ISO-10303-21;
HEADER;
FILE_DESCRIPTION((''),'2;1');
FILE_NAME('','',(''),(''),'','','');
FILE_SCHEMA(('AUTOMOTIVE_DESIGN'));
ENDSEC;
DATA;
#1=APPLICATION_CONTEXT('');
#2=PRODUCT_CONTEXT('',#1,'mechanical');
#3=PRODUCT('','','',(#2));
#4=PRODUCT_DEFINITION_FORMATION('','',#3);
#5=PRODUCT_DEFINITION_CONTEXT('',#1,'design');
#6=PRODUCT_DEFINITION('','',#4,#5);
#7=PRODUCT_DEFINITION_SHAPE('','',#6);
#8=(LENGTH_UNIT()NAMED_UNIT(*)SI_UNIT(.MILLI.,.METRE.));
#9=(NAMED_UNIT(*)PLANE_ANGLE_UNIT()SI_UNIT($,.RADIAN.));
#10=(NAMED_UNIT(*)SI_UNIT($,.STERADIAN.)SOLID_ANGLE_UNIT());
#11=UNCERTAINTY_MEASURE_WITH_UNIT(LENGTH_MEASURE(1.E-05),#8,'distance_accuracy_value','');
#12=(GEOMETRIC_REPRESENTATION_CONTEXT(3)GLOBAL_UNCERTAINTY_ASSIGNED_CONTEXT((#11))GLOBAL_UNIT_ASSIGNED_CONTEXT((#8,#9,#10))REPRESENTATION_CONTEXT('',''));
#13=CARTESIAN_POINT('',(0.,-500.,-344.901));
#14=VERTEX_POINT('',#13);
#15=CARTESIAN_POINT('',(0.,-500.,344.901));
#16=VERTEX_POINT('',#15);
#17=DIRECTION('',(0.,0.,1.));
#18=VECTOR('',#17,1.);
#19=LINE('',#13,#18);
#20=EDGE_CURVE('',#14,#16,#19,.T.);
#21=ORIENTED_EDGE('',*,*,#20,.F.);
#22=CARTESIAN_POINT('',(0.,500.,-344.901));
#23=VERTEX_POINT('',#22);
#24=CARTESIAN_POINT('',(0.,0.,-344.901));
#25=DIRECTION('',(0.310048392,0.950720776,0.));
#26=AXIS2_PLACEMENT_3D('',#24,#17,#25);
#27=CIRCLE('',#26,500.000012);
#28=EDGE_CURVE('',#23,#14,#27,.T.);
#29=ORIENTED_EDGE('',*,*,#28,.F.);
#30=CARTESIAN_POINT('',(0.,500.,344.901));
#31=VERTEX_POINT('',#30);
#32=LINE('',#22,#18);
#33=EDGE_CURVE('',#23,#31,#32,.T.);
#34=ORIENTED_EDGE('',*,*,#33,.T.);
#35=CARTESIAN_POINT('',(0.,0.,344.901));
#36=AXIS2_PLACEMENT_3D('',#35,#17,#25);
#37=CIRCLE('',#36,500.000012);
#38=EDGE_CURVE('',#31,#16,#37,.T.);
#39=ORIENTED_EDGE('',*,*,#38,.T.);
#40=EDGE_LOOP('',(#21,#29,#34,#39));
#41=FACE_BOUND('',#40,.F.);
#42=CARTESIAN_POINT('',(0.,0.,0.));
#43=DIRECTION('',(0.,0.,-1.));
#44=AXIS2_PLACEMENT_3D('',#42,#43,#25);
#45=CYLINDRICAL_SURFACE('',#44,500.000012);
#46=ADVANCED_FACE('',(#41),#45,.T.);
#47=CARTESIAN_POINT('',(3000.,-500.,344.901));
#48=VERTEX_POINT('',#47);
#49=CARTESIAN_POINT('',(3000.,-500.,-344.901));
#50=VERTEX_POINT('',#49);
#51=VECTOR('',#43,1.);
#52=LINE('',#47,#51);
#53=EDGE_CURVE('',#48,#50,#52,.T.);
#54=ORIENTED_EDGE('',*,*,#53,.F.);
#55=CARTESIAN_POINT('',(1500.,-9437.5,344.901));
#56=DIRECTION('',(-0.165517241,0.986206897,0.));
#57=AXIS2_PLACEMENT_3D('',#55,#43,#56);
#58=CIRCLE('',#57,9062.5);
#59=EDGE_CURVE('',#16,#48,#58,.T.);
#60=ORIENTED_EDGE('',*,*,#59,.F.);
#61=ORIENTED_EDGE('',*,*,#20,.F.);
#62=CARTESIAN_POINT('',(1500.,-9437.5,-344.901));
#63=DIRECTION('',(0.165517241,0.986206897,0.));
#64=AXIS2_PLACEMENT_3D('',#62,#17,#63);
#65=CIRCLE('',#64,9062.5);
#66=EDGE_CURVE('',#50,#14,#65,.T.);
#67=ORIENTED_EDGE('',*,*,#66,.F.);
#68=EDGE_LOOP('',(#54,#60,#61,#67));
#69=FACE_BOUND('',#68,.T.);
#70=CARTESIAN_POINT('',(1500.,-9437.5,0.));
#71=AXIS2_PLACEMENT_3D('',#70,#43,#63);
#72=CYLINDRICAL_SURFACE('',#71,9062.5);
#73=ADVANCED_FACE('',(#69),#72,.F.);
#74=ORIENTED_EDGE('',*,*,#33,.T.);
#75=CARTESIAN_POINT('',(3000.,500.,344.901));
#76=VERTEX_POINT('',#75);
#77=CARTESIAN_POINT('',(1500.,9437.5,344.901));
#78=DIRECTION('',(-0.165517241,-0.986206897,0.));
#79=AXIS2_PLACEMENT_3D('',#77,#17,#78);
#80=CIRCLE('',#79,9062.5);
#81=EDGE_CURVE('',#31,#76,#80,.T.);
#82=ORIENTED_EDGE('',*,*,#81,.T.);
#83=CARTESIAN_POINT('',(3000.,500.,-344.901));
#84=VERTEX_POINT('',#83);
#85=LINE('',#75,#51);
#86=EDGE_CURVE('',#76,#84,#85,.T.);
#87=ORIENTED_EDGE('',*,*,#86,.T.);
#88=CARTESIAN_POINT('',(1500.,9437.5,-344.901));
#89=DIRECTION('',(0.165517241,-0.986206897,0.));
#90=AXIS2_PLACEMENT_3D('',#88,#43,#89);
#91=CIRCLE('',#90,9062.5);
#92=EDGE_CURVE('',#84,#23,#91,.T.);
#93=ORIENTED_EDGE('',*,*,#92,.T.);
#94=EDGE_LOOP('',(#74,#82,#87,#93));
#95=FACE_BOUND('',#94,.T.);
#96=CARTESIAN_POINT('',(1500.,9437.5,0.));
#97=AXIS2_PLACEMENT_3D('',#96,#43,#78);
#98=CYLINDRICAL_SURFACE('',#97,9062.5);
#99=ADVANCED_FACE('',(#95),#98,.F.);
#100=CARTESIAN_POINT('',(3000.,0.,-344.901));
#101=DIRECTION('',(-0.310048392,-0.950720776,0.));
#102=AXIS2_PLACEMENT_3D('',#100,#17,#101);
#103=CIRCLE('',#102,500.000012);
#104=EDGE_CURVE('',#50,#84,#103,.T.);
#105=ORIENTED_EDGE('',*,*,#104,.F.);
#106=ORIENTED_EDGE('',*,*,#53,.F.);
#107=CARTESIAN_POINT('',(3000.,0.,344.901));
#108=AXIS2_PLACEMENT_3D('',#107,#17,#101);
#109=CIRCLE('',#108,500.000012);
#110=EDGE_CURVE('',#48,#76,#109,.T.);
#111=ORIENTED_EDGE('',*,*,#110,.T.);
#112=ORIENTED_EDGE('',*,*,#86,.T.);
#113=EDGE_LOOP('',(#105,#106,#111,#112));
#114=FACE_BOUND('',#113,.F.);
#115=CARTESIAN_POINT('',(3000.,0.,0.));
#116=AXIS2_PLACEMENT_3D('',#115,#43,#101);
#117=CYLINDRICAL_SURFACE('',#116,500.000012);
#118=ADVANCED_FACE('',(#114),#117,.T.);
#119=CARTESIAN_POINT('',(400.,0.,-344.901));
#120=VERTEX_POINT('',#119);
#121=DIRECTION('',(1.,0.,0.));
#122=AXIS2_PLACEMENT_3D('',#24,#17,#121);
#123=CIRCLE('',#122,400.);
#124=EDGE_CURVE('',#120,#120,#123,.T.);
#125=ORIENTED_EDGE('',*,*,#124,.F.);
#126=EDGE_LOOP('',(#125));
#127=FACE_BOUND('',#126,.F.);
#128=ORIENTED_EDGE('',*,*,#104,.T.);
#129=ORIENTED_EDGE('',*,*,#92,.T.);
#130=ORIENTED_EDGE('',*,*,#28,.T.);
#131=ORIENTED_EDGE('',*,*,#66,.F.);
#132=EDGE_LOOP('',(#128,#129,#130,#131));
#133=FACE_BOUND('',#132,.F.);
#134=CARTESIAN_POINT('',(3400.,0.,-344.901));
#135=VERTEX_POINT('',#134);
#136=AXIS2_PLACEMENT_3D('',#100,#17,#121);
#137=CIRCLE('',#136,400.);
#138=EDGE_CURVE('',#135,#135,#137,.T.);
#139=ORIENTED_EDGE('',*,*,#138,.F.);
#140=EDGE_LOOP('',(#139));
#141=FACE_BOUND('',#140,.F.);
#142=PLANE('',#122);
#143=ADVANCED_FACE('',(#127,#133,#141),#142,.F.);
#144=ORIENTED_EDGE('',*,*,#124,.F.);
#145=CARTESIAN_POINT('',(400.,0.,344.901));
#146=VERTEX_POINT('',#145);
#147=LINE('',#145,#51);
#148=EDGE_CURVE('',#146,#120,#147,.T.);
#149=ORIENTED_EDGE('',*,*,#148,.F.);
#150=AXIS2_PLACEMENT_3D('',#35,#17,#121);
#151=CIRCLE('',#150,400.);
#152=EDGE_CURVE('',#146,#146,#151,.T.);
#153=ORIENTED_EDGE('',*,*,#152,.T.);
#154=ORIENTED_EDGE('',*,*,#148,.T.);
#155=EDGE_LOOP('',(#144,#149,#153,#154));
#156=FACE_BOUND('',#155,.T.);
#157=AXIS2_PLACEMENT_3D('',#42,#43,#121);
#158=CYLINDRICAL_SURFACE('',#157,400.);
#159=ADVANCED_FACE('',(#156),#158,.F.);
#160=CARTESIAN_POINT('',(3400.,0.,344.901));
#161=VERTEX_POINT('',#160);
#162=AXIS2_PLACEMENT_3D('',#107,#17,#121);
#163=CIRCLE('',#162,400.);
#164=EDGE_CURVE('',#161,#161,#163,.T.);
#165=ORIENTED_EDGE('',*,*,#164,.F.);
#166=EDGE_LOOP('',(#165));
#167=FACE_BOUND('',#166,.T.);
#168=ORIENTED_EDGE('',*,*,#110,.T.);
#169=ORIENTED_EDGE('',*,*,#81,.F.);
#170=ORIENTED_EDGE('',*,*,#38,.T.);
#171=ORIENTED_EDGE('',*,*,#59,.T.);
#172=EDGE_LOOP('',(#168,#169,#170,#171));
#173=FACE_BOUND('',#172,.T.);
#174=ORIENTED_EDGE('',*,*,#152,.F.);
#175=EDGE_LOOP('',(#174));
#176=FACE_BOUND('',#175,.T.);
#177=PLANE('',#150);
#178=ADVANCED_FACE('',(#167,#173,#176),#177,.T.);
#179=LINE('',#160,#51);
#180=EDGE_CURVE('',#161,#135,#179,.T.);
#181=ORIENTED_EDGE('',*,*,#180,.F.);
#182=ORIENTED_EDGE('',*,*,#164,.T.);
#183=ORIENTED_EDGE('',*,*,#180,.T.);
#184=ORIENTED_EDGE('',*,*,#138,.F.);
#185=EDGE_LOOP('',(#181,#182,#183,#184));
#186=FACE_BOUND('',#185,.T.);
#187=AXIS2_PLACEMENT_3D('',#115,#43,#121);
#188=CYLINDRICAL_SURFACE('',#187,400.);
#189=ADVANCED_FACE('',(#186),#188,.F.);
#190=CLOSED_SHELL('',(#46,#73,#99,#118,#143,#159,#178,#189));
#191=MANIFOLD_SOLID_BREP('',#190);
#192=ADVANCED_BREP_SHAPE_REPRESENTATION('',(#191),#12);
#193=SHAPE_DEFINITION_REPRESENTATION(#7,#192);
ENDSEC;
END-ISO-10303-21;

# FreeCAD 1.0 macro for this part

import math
import FreeCAD as App
import Part
import Sketcher
from FreeCAD import Vector

doc = App.newDocument("Part")
params = doc.addObject("Spreadsheet::Sheet", "Params")
for row, (alias, value) in enumerate([
    ("sketch1_diameter", "800 mm"),
    ("sketch1_radius", "500 mm"),
    ("sketch1_radius2", "9062.5 mm"),
    ("pad1_length", "689.802 mm"),
], start=1):
    params.set(f"A{row}", alias)
    params.set(f"B{row}", "=" + value)
    params.setAlias(f"B{row}", alias)

body = doc.addObject("PartDesign::Body", "Body")

sketch1 = body.newObject("Sketcher::SketchObject", "Sketch")
sketch1.AttachmentSupport = (doc.getObject("XY_Plane"), [""])
sketch1.MapMode = "FlatFace"
sketch1.addGeometry([
    Part.ArcOfCircle(Part.Circle(Vector(1500, 9437.5, 0), Vector(0, 0, 1), 9062.5), math.radians(-99.527283), math.radians(-80.472717)),
    Part.ArcOfCircle(Part.Circle(Vector(0, 0, 0), Vector(0, 0, 1), 500.000012), math.radians(90), math.radians(270)),
    Part.ArcOfCircle(Part.Circle(Vector(1500, -9437.5, 0), Vector(0, 0, 1), 9062.5), math.radians(80.472717), math.radians(99.527283)),
    Part.ArcOfCircle(Part.Circle(Vector(3000, 0, 0), Vector(0, 0, 1), 500.000012), math.radians(-90), math.radians(90)),
    Part.Circle(Vector(0, 0, 0), Vector(0, 0, 1), 400),
    Part.Circle(Vector(3000, 0, 0), Vector(0, 0, 1), 400),
], False)
sketch1.addConstraint([
    Sketcher.Constraint("Coincident", 0, 1, 1, 1),
    Sketcher.Constraint("Coincident", 1, 2, 2, 2),
    Sketcher.Constraint("Coincident", 2, 1, 3, 1),
    Sketcher.Constraint("Coincident", 3, 2, 0, 2),
    Sketcher.Constraint("Coincident", 1, 3, -1, 1),
    Sketcher.Constraint("Coincident", 4, 3, -1, 1),
    Sketcher.Constraint("Coincident", 5, 3, 3, 3),
    Sketcher.Constraint("Equal", 0, 2),
    Sketcher.Constraint("Equal", 1, 3),
    Sketcher.Constraint("Equal", 4, 5),
    Sketcher.Constraint("Symmetric", 0, 3, 2, 3, -1),
    Sketcher.Constraint("PointOnObject", 3, 3, -1),
    Sketcher.Constraint("PointOnObject", 1, 2, -2),
    Sketcher.Constraint("Diameter", 4, 800.0),
    Sketcher.Constraint("Radius", 1, 500.0),
    Sketcher.Constraint("Radius", 0, 9062.5),
    Sketcher.Constraint("DistanceX", -1, 1, 3, 3, 3000.0),
    Sketcher.Constraint("DistanceX", -1, 1, 3, 2, 3000.0),
])
sketch1.setExpression("Constraints[13]", "Params.sketch1_diameter")
sketch1.setExpression("Constraints[14]", "Params.sketch1_radius")
sketch1.setExpression("Constraints[15]", "Params.sketch1_radius2")
pad1 = body.newObject("PartDesign::Pad", "Pad")
pad1.Profile = sketch1
pad1.setExpression("Length", "Params.pad1_length")
pad1.Midplane = True

doc.recompute()
